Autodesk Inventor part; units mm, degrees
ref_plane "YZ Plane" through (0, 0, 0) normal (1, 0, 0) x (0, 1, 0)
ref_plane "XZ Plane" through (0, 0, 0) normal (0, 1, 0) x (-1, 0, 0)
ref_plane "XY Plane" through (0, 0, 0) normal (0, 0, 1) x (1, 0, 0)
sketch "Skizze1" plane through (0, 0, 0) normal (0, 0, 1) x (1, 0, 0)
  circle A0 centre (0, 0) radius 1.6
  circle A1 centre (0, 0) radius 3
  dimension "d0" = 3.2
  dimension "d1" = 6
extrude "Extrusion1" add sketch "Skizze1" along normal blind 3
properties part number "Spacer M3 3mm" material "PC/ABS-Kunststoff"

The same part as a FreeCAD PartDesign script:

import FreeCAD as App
import Part
import Sketcher

V = App.Vector
Q = App.Units.Quantity

doc = App.newDocument("Part")
params = doc.addObject("Spreadsheet::Sheet", "Params")
for row, (alias, value) in enumerate([
    ("sketch1_diameter", "6 mm"),
    ("sketch1_diameter2", "3.2 mm"),
    ("pad1_length", "3 mm"),
], start=1):
    params.set(f"A{row}", alias)
    params.set(f"B{row}", "=" + value)
    params.setAlias(f"B{row}", alias)

body = doc.addObject("PartDesign::Body", "Body")

# Sketch on XY plane
sketch1 = body.newObject("Sketcher::SketchObject", "Sketch")
sketch1.AttachmentSupport = (doc.getObject("XY_Plane"), [""])
sketch1.MapMode = "FlatFace"
sketch1.addGeometry(Part.Circle(V(0, 0, 0), V(0, 0, 1), 3), False)
sketch1.addGeometry(Part.Circle(V(0, 0, 0), V(0, 0, 1), 1.6), False)
sketch1.addConstraint(Sketcher.Constraint("Coincident", 0, 3, -1, 1))
sketch1.addConstraint(Sketcher.Constraint("Coincident", 1, 3, -1, 1))
sketch1.addConstraint(Sketcher.Constraint("Diameter", 0, Q("6 mm")))
sketch1.addConstraint(Sketcher.Constraint("Diameter", 1, Q("3.2 mm")))
sketch1.setExpression("Constraints[2]", "Params.sketch1_diameter")
sketch1.setExpression("Constraints[3]", "Params.sketch1_diameter2")
pad1 = body.newObject("PartDesign::Pad", "Pad")
pad1.Profile = sketch1
pad1.setExpression("Length", "Params.pad1_length")

doc.recompute()
